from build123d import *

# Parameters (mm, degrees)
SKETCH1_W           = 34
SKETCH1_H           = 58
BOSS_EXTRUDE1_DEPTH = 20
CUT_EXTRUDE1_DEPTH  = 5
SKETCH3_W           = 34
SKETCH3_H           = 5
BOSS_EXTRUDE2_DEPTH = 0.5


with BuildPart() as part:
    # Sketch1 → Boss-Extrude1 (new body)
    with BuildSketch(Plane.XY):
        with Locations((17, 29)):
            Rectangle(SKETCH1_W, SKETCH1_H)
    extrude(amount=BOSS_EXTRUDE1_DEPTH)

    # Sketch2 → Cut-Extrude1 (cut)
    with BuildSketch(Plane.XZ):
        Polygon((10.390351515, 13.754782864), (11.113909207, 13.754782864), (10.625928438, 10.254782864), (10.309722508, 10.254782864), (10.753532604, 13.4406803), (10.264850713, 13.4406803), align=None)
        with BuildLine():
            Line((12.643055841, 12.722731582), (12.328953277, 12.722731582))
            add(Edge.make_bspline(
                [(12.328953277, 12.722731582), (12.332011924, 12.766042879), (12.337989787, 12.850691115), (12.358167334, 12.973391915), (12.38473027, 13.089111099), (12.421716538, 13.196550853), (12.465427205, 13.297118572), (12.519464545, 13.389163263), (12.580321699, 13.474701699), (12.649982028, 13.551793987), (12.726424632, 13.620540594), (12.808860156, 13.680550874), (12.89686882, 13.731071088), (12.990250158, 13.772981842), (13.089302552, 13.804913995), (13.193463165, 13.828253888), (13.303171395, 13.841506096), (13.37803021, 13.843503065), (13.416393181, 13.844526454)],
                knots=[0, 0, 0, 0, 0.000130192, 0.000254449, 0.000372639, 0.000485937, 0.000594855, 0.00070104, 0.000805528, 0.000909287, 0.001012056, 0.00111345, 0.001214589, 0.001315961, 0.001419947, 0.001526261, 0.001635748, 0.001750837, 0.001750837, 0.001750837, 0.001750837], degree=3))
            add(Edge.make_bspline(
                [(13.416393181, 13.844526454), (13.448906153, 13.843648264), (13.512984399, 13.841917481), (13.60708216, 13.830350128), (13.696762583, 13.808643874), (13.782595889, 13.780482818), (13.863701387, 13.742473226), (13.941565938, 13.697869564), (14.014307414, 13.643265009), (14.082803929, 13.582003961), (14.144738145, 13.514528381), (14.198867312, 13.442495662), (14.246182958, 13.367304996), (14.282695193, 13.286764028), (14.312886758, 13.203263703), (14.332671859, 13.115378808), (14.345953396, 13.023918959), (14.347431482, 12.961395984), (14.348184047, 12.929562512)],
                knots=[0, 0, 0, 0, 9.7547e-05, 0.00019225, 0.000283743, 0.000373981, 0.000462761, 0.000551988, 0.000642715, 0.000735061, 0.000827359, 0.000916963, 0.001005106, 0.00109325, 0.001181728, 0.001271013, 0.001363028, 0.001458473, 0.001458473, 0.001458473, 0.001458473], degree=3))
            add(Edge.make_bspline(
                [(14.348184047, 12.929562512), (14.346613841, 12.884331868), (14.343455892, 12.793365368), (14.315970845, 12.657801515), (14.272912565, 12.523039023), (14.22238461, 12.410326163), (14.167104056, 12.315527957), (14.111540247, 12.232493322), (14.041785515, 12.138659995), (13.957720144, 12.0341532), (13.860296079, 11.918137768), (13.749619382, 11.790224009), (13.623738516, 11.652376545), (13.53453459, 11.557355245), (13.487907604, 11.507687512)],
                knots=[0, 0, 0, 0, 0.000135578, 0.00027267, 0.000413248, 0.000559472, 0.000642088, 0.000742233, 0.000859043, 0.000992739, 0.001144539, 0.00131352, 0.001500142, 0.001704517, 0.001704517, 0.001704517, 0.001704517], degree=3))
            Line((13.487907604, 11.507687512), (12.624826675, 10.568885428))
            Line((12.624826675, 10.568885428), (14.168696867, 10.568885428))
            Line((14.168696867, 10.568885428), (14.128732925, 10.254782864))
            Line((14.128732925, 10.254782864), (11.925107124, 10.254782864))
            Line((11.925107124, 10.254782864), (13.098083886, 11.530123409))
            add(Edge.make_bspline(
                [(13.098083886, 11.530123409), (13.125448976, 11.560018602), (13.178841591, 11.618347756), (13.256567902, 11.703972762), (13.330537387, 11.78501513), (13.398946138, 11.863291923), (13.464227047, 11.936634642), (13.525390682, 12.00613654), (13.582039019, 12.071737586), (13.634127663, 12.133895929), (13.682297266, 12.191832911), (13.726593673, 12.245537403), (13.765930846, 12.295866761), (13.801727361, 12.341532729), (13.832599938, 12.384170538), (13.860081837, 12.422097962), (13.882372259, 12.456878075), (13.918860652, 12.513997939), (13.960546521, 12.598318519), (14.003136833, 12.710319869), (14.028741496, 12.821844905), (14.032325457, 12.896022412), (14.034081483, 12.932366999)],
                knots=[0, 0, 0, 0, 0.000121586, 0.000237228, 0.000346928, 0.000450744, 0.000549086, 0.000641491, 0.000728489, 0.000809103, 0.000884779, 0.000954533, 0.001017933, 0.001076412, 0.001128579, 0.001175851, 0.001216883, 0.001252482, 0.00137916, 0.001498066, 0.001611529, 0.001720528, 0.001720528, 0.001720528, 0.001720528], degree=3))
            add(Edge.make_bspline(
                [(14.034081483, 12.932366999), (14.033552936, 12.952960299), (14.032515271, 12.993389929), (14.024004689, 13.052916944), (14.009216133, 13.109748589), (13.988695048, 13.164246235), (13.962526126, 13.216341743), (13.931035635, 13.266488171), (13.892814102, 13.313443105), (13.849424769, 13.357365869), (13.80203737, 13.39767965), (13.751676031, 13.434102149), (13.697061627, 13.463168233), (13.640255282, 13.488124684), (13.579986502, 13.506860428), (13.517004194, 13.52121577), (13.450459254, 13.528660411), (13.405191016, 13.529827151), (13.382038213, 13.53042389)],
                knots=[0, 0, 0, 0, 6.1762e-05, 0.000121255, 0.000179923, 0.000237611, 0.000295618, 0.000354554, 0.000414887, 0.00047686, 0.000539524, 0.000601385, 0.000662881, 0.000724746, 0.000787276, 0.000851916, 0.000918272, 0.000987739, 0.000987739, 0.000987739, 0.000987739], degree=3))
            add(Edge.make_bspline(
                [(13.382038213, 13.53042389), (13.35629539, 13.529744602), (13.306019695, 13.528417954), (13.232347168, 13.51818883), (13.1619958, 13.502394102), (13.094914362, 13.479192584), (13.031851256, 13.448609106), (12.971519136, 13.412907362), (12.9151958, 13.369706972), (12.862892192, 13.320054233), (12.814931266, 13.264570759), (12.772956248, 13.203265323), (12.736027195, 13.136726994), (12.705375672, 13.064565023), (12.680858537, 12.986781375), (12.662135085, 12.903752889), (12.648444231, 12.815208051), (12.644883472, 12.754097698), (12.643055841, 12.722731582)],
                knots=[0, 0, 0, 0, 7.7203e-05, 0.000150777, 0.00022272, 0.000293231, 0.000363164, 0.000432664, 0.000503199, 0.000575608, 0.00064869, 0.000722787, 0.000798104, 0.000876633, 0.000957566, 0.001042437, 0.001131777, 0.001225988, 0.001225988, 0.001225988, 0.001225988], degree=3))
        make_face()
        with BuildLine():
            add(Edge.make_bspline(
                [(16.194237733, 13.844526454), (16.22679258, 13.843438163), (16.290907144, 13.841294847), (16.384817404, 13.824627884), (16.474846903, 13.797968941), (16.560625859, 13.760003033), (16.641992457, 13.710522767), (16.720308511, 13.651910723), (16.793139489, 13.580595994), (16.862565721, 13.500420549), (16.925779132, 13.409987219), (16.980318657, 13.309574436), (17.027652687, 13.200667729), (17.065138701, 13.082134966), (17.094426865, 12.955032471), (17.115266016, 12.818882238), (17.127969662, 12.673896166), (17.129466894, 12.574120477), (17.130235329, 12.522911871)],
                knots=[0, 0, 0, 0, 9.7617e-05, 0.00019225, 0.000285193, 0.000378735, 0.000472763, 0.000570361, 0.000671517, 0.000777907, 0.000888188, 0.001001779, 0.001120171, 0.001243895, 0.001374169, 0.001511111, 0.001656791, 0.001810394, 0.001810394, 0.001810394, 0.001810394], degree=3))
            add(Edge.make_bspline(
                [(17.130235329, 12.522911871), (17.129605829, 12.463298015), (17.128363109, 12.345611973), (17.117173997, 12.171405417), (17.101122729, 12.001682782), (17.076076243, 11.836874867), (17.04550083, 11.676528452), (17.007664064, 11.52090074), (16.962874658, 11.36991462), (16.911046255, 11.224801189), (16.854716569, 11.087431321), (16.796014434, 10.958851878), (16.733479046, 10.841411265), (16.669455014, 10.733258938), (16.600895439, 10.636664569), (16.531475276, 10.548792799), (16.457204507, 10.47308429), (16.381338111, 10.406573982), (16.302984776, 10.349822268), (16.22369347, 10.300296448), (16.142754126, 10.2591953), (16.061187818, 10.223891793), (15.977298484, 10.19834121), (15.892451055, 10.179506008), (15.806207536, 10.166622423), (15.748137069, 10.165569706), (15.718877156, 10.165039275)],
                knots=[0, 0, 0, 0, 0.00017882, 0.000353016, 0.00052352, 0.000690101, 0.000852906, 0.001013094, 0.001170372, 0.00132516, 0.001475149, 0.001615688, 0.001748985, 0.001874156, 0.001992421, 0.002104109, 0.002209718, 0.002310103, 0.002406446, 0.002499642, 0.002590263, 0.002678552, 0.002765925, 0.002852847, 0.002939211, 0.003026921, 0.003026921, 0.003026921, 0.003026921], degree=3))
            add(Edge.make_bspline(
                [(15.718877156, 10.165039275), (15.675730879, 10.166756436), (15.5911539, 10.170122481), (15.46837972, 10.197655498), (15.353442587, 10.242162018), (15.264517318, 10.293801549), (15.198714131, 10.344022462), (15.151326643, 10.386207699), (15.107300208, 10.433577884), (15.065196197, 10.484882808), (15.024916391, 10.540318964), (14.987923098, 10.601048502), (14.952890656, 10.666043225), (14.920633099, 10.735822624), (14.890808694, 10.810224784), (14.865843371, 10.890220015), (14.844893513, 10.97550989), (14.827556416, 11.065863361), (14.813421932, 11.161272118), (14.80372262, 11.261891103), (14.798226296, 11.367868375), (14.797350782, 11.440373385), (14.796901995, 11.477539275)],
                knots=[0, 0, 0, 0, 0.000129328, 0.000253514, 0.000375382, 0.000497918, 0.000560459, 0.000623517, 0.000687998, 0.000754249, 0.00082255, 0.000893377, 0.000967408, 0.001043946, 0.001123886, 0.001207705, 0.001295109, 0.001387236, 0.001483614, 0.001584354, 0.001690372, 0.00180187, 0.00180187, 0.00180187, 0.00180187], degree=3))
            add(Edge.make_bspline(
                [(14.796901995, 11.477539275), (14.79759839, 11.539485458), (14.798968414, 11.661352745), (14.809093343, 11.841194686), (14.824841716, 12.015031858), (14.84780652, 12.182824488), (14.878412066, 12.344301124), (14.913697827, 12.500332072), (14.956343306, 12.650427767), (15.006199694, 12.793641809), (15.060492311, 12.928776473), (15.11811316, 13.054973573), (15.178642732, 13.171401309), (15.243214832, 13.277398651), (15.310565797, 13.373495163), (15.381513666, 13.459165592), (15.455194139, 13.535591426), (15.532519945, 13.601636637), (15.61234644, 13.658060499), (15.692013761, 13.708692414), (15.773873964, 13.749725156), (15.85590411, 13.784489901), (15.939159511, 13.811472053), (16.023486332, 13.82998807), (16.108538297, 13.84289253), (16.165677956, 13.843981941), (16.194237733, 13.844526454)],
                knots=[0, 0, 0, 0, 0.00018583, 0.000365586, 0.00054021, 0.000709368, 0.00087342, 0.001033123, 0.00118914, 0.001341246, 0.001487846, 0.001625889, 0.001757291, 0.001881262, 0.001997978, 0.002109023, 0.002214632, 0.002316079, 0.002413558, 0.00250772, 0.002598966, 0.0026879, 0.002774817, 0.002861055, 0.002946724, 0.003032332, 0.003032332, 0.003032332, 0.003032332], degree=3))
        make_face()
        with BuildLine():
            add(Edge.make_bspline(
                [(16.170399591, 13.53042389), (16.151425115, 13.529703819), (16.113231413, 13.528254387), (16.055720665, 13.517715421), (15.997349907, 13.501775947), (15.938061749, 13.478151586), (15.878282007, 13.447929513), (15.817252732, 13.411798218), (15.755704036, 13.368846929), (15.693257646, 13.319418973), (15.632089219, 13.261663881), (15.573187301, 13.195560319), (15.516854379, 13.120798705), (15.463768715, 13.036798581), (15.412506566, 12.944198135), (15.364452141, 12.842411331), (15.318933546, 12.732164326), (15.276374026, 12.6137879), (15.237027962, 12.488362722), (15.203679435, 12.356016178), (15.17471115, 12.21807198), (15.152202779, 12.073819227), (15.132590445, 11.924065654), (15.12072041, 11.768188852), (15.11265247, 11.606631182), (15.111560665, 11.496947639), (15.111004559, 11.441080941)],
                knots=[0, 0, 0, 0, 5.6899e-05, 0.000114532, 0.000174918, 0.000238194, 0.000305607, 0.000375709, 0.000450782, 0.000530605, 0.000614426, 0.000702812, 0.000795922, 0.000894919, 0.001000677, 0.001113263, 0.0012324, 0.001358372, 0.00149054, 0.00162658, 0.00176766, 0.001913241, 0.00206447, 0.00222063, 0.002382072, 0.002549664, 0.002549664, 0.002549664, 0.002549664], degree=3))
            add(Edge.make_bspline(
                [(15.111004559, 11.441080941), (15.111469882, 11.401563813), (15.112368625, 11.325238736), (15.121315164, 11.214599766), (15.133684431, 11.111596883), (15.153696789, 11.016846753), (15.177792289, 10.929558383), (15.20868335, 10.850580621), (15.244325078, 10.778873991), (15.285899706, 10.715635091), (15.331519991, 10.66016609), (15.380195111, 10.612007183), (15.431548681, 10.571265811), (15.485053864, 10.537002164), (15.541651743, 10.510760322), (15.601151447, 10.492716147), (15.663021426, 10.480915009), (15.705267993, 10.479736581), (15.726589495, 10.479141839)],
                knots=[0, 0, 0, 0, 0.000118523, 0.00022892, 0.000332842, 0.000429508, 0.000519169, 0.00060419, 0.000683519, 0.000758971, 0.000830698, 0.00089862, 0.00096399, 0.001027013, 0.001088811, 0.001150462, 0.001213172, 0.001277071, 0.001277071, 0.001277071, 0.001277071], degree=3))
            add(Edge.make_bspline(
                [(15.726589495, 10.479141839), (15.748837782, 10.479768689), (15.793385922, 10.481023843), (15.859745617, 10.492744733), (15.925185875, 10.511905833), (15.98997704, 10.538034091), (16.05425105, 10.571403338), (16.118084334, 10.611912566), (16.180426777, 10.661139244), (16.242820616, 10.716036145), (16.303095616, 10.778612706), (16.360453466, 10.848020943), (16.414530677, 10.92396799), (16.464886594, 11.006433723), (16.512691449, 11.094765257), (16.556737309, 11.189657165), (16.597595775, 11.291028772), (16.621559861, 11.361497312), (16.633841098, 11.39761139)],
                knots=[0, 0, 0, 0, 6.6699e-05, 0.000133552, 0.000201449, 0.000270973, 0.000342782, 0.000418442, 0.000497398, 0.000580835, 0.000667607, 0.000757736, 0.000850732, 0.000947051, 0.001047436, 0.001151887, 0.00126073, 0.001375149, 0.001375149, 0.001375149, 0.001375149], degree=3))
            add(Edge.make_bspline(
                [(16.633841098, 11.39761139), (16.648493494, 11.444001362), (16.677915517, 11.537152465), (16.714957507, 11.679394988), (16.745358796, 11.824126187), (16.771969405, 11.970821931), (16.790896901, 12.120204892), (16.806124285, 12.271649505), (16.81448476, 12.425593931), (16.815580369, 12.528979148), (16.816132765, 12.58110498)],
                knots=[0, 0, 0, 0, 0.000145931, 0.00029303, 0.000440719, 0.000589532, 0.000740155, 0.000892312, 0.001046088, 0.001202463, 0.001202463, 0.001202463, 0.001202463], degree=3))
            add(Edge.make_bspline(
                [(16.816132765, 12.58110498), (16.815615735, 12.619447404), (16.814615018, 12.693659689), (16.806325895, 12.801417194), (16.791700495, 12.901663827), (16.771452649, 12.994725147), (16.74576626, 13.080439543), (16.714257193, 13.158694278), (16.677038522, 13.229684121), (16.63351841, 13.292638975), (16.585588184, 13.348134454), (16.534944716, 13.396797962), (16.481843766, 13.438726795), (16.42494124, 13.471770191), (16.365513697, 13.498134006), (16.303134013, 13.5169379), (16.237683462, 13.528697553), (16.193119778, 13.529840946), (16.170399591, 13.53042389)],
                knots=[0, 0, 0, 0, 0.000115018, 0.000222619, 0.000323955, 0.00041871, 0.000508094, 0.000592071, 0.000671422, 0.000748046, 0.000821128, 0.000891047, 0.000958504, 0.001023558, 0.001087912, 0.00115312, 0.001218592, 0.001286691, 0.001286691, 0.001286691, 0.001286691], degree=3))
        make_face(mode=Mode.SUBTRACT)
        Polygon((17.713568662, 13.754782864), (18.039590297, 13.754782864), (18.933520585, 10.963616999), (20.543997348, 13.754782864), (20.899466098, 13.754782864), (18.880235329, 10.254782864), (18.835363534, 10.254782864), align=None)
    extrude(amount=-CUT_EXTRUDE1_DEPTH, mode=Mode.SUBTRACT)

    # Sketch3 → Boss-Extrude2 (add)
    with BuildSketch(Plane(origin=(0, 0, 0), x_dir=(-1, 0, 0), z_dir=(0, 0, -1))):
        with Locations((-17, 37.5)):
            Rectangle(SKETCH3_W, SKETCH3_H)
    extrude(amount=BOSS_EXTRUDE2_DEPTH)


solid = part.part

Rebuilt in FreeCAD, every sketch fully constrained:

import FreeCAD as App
import Part
import Sketcher

doc = App.newDocument("Part")
body = doc.addObject("PartDesign::Body", "Body")

# Sketch on XY plane
sketch1 = doc.addObject("Sketcher::SketchObject", "Sketch")
body.addObject(sketch1)
sketch1.AttachmentSupport = (doc.XY_Plane, [""])
sketch1.MapMode = "FlatFace"
sketch1.addGeometry([
    Part.LineSegment(App.Vector(0, 58, 0), App.Vector(0, 0, 0)),
    Part.LineSegment(App.Vector(0, 0, 0), App.Vector(34, 0, 0)),
    Part.LineSegment(App.Vector(34, 0, 0), App.Vector(34, 58, 0)),
    Part.LineSegment(App.Vector(34, 58, 0), App.Vector(0, 58, 0)),
], False)
sketch1.addConstraint([
    Sketcher.Constraint("Coincident", 0, 2, 1, 1),
    Sketcher.Constraint("Coincident", 1, 2, 2, 1),
    Sketcher.Constraint("Coincident", 2, 2, 3, 1),
    Sketcher.Constraint("Coincident", 3, 2, 0, 1),
    Sketcher.Constraint("Vertical", 0),
    Sketcher.Constraint("Horizontal", 1),
    Sketcher.Constraint("Vertical", 2),
    Sketcher.Constraint("Horizontal", 3),
    Sketcher.Constraint("Coincident", 0, 2, -1, 1),
    Sketcher.Constraint("DistanceX", 1, 1, 1, 2, 34.0),
    Sketcher.Constraint("DistanceY", 0, 2, 0, 1, 58.0),
])
pad1 = doc.addObject("PartDesign::Pad", "Pad")
body.addObject(pad1)
pad1.Profile = sketch1
pad1.Length = 20

# Sketch on XZ plane
sketch2 = doc.addObject("Sketcher::SketchObject", "Sketch001")
body.addObject(sketch2)
sketch2.AttachmentSupport = (doc.XZ_Plane, [""])
sketch2.MapMode = "FlatFace"
sketch2.addGeometry([
    Part.LineSegment(App.Vector(11.113909, 13.754783, 0), App.Vector(10.390352, 13.754783, 0)),  # 0
    Part.LineSegment(App.Vector(10.390352, 13.754783, 0), App.Vector(10.264851, 13.44068, 0)),  # 1
    Part.LineSegment(App.Vector(10.264851, 13.44068, 0), App.Vector(10.753533, 13.44068, 0)),  # 2
    Part.LineSegment(App.Vector(10.753533, 13.44068, 0), App.Vector(10.309723, 10.254783, 0)),  # 3
    Part.LineSegment(App.Vector(10.309723, 10.254783, 0), App.Vector(10.625928, 10.254783, 0)),  # 4
    Part.LineSegment(App.Vector(10.625928, 10.254783, 0), App.Vector(11.113909, 13.754783, 0)),  # 5
    Part.LineSegment(App.Vector(12.328953, 12.722732, 0), App.Vector(12.643056, 12.722732, 0)),  # 6
    Part.BSplineCurve([App.Vector(13.382038, 13.530424, 0), App.Vector(13.356295, 13.529745, 0), App.Vector(13.30602, 13.528418, 0), App.Vector(13.232347, 13.518189, 0), App.Vector(13.161996, 13.502394, 0), App.Vector(13.094914, 13.479193, 0), App.Vector(13.031851, 13.448609, 0), App.Vector(12.971519, 13.412907, 0), App.Vector(12.915196, 13.369707, 0), App.Vector(12.862892, 13.320054, 0), App.Vector(12.814931, 13.264571, 0), App.Vector(12.772956, 13.203265, 0), App.Vector(12.736027, 13.136727, 0), App.Vector(12.705376, 13.064565, 0), App.Vector(12.680859, 12.986781, 0), App.Vector(12.662135, 12.903753, 0), App.Vector(12.648444, 12.815208, 0), App.Vector(12.644883, 12.754098, 0), App.Vector(12.643056, 12.722732, 0)], [4, 1, 1, 1, 1, 1, 1, 1, 1, 1, 1, 1, 1, 1, 1, 1, 4], [0, 0.000077203, 0.000150777, 0.00022272, 0.000293231, 0.000363164, 0.000432664, 0.000503199, 0.000575608, 0.00064869, 0.000722787, 0.000798104, 0.000876633, 0.000957566, 0.001042437, 0.001131777, 0.001225988], False, 3, [1, 1, 1, 1, 1, 1, 1, 1, 1, 1, 1, 1, 1, 1, 1, 1, 1, 1, 1], False),  # 7
    Part.BSplineCurve([App.Vector(14.034081, 12.932367, 0), App.Vector(14.033553, 12.95296, 0), App.Vector(14.032515, 12.99339, 0), App.Vector(14.024005, 13.052917, 0), App.Vector(14.009216, 13.109749, 0), App.Vector(13.988695, 13.164246, 0), App.Vector(13.962526, 13.216342, 0), App.Vector(13.931036, 13.266488, 0), App.Vector(13.892814, 13.313443, 0), App.Vector(13.849425, 13.357366, 0), App.Vector(13.802037, 13.39768, 0), App.Vector(13.751676, 13.434102, 0), App.Vector(13.697062, 13.463168, 0), App.Vector(13.640255, 13.488125, 0), App.Vector(13.579987, 13.50686, 0), App.Vector(13.517004, 13.521216, 0), App.Vector(13.450459, 13.52866, 0), App.Vector(13.405191, 13.529827, 0), App.Vector(13.382038, 13.530424, 0)], [4, 1, 1, 1, 1, 1, 1, 1, 1, 1, 1, 1, 1, 1, 1, 1, 4], [0, 0.000061762, 0.000121255, 0.000179923, 0.000237611, 0.000295618, 0.000354554, 0.000414887, 0.00047686, 0.000539524, 0.000601385, 0.000662881, 0.000724746, 0.000787276, 0.000851916, 0.000918272, 0.000987739], False, 3, [1, 1, 1, 1, 1, 1, 1, 1, 1, 1, 1, 1, 1, 1, 1, 1, 1, 1, 1], False),  # 8
    Part.BSplineCurve([App.Vector(13.098084, 11.530123, 0), App.Vector(13.125449, 11.560019, 0), App.Vector(13.178842, 11.618348, 0), App.Vector(13.256568, 11.703973, 0), App.Vector(13.330537, 11.785015, 0), App.Vector(13.398946, 11.863292, 0), App.Vector(13.464227, 11.936635, 0), App.Vector(13.525391, 12.006137, 0), App.Vector(13.582039, 12.071738, 0), App.Vector(13.634128, 12.133896, 0), App.Vector(13.682297, 12.191833, 0), App.Vector(13.726594, 12.245537, 0), App.Vector(13.765931, 12.295867, 0), App.Vector(13.801727, 12.341533, 0), App.Vector(13.8326, 12.384171, 0), App.Vector(13.860082, 12.422098, 0), App.Vector(13.882372, 12.456878, 0), App.Vector(13.918861, 12.513998, 0), App.Vector(13.960547, 12.598319, 0), App.Vector(14.003137, 12.71032, 0), App.Vector(14.028741, 12.821845, 0), App.Vector(14.032325, 12.896022, 0), App.Vector(14.034081, 12.932367, 0)], [4, 1, 1, 1, 1, 1, 1, 1, 1, 1, 1, 1, 1, 1, 1, 1, 1, 1, 1, 1, 4], [0, 0.000121586, 0.000237228, 0.000346928, 0.000450744, 0.000549086, 0.000641491, 0.000728489, 0.000809103, 0.000884779, 0.000954533, 0.001017933, 0.001076412, 0.001128579, 0.001175851, 0.001216883, 0.001252482, 0.00137916, 0.001498066, 0.001611529, 0.001720528], False, 3, [1, 1, 1, 1, 1, 1, 1, 1, 1, 1, 1, 1, 1, 1, 1, 1, 1, 1, 1, 1, 1, 1, 1], False),  # 9
    Part.LineSegment(App.Vector(13.098084, 11.530123, 0), App.Vector(11.925107, 10.254783, 0)),  # 10
    Part.LineSegment(App.Vector(11.925107, 10.254783, 0), App.Vector(14.128733, 10.254783, 0)),  # 11
    Part.LineSegment(App.Vector(14.128733, 10.254783, 0), App.Vector(14.168697, 10.568885, 0)),  # 12
    Part.LineSegment(App.Vector(14.168697, 10.568885, 0), App.Vector(12.624827, 10.568885, 0)),  # 13
    Part.LineSegment(App.Vector(12.624827, 10.568885, 0), App.Vector(13.487908, 11.507688, 0)),  # 14
    Part.BSplineCurve([App.Vector(14.348184, 12.929563, 0), App.Vector(14.346614, 12.884332, 0), App.Vector(14.343456, 12.793365, 0), App.Vector(14.315971, 12.657802, 0), App.Vector(14.272913, 12.523039, 0), App.Vector(14.222385, 12.410326, 0), App.Vector(14.167104, 12.315528, 0), App.Vector(14.11154, 12.232493, 0), App.Vector(14.041786, 12.13866, 0), App.Vector(13.95772, 12.034153, 0), App.Vector(13.860296, 11.918138, 0), App.Vector(13.749619, 11.790224, 0), App.Vector(13.623739, 11.652377, 0), App.Vector(13.534535, 11.557355, 0), App.Vector(13.487908, 11.507688, 0)], [4, 1, 1, 1, 1, 1, 1, 1, 1, 1, 1, 1, 4], [0, 0.000135578, 0.00027267, 0.000413248, 0.000559472, 0.000642088, 0.000742233, 0.000859043, 0.000992739, 0.001144539, 0.00131352, 0.001500142, 0.001704517], False, 3, [1, 1, 1, 1, 1, 1, 1, 1, 1, 1, 1, 1, 1, 1, 1], False),  # 15
    Part.BSplineCurve([App.Vector(13.416393, 13.844526, 0), App.Vector(13.448906, 13.843648, 0), App.Vector(13.512984, 13.841917, 0), App.Vector(13.607082, 13.83035, 0), App.Vector(13.696763, 13.808644, 0), App.Vector(13.782596, 13.780483, 0), App.Vector(13.863701, 13.742473, 0), App.Vector(13.941566, 13.69787, 0), App.Vector(14.014307, 13.643265, 0), App.Vector(14.082804, 13.582004, 0), App.Vector(14.144738, 13.514528, 0), App.Vector(14.198867, 13.442496, 0), App.Vector(14.246183, 13.367305, 0), App.Vector(14.282695, 13.286764, 0), App.Vector(14.312887, 13.203264, 0), App.Vector(14.332672, 13.115379, 0), App.Vector(14.345953, 13.023919, 0), App.Vector(14.347431, 12.961396, 0), App.Vector(14.348184, 12.929563, 0)], [4, 1, 1, 1, 1, 1, 1, 1, 1, 1, 1, 1, 1, 1, 1, 1, 4], [0, 0.000097547, 0.00019225, 0.000283743, 0.000373981, 0.000462761, 0.000551988, 0.000642715, 0.000735061, 0.000827359, 0.000916963, 0.001005106, 0.00109325, 0.001181728, 0.001271013, 0.001363028, 0.001458473], False, 3, [1, 1, 1, 1, 1, 1, 1, 1, 1, 1, 1, 1, 1, 1, 1, 1, 1, 1, 1], False),  # 16
    Part.BSplineCurve([App.Vector(12.328953, 12.722732, 0), App.Vector(12.332012, 12.766043, 0), App.Vector(12.33799, 12.850691, 0), App.Vector(12.358167, 12.973392, 0), App.Vector(12.38473, 13.089111, 0), App.Vector(12.421717, 13.196551, 0), App.Vector(12.465427, 13.297119, 0), App.Vector(12.519465, 13.389163, 0), App.Vector(12.580322, 13.474702, 0), App.Vector(12.649982, 13.551794, 0), App.Vector(12.726425, 13.620541, 0), App.Vector(12.80886, 13.680551, 0), App.Vector(12.896869, 13.731071, 0), App.Vector(12.99025, 13.772982, 0), App.Vector(13.089303, 13.804914, 0), App.Vector(13.193463, 13.828254, 0), App.Vector(13.303171, 13.841506, 0), App.Vector(13.37803, 13.843503, 0), App.Vector(13.416393, 13.844526, 0)], [4, 1, 1, 1, 1, 1, 1, 1, 1, 1, 1, 1, 1, 1, 1, 1, 4], [0, 0.000130192, 0.000254449, 0.000372639, 0.000485937, 0.000594855, 0.00070104, 0.000805528, 0.000909287, 0.001012056, 0.00111345, 0.001214589, 0.001315961, 0.001419947, 0.001526261, 0.001635748, 0.001750837], False, 3, [1, 1, 1, 1, 1, 1, 1, 1, 1, 1, 1, 1, 1, 1, 1, 1, 1, 1, 1], False),  # 17
    Part.BSplineCurve([App.Vector(16.194238, 13.844526, 0), App.Vector(16.226793, 13.843438, 0), App.Vector(16.290907, 13.841295, 0), App.Vector(16.384817, 13.824628, 0), App.Vector(16.474847, 13.797969, 0), App.Vector(16.560626, 13.760003, 0), App.Vector(16.641992, 13.710523, 0), App.Vector(16.720309, 13.651911, 0), App.Vector(16.793139, 13.580596, 0), App.Vector(16.862566, 13.500421, 0), App.Vector(16.925779, 13.409987, 0), App.Vector(16.980319, 13.309574, 0), App.Vector(17.027653, 13.200668, 0), App.Vector(17.065139, 13.082135, 0), App.Vector(17.094427, 12.955032, 0), App.Vector(17.115266, 12.818882, 0), App.Vector(17.12797, 12.673896, 0), App.Vector(17.129467, 12.57412, 0), App.Vector(17.130235, 12.522912, 0)], [4, 1, 1, 1, 1, 1, 1, 1, 1, 1, 1, 1, 1, 1, 1, 1, 4], [0, 0.000097617, 0.00019225, 0.000285193, 0.000378735, 0.000472763, 0.000570361, 0.000671517, 0.000777907, 0.000888188, 0.001001779, 0.001120171, 0.001243895, 0.001374169, 0.001511111, 0.001656791, 0.001810394], False, 3, [1, 1, 1, 1, 1, 1, 1, 1, 1, 1, 1, 1, 1, 1, 1, 1, 1, 1, 1], False),  # 18
    Part.BSplineCurve([App.Vector(14.796902, 11.477539, 0), App.Vector(14.797598, 11.539485, 0), App.Vector(14.798968, 11.661353, 0), App.Vector(14.809093, 11.841195, 0), App.Vector(14.824842, 12.015032, 0), App.Vector(14.847807, 12.182824, 0), App.Vector(14.878412, 12.344301, 0), App.Vector(14.913698, 12.500332, 0), App.Vector(14.956343, 12.650428, 0), App.Vector(15.0062, 12.793642, 0), App.Vector(15.060492, 12.928776, 0), App.Vector(15.118113, 13.054974, 0), App.Vector(15.178643, 13.171401, 0), App.Vector(15.243215, 13.277399, 0), App.Vector(15.310566, 13.373495, 0), App.Vector(15.381514, 13.459166, 0), App.Vector(15.455194, 13.535591, 0), App.Vector(15.53252, 13.601637, 0), App.Vector(15.612346, 13.65806, 0), App.Vector(15.692014, 13.708692, 0), App.Vector(15.773874, 13.749725, 0), App.Vector(15.855904, 13.78449, 0), App.Vector(15.93916, 13.811472, 0), App.Vector(16.023486, 13.829988, 0), App.Vector(16.108538, 13.842893, 0), App.Vector(16.165678, 13.843982, 0), App.Vector(16.194238, 13.844526, 0)], [4, 1, 1, 1, 1, 1, 1, 1, 1, 1, 1, 1, 1, 1, 1, 1, 1, 1, 1, 1, 1, 1, 1, 1, 4], [0, 0.00018583, 0.000365586, 0.00054021, 0.000709368, 0.00087342, 0.001033123, 0.00118914, 0.001341246, 0.001487846, 0.001625889, 0.001757291, 0.001881262, 0.001997978, 0.002109023, 0.002214632, 0.002316079, 0.002413558, 0.00250772, 0.002598966, 0.0026879, 0.002774817, 0.002861055, 0.002946724, 0.003032332], False, 3, [1, 1, 1, 1, 1, 1, 1, 1, 1, 1, 1, 1, 1, 1, 1, 1, 1, 1, 1, 1, 1, 1, 1, 1, 1, 1, 1], False),  # 19
    Part.BSplineCurve([App.Vector(15.718877, 10.165039, 0), App.Vector(15.675731, 10.166756, 0), App.Vector(15.591154, 10.170122, 0), App.Vector(15.46838, 10.197655, 0), App.Vector(15.353443, 10.242162, 0), App.Vector(15.264517, 10.293802, 0), App.Vector(15.198714, 10.344022, 0), App.Vector(15.151327, 10.386208, 0), App.Vector(15.1073, 10.433578, 0), App.Vector(15.065196, 10.484883, 0), App.Vector(15.024916, 10.540319, 0), App.Vector(14.987923, 10.601049, 0), App.Vector(14.952891, 10.666043, 0), App.Vector(14.920633, 10.735823, 0), App.Vector(14.890809, 10.810225, 0), App.Vector(14.865843, 10.89022, 0), App.Vector(14.844894, 10.97551, 0), App.Vector(14.827556, 11.065863, 0), App.Vector(14.813422, 11.161272, 0), App.Vector(14.803723, 11.261891, 0), App.Vector(14.798226, 11.367868, 0), App.Vector(14.797351, 11.440373, 0), App.Vector(14.796902, 11.477539, 0)], [4, 1, 1, 1, 1, 1, 1, 1, 1, 1, 1, 1, 1, 1, 1, 1, 1, 1, 1, 1, 4], [0, 0.000129328, 0.000253514, 0.000375382, 0.000497918, 0.000560459, 0.000623517, 0.000687998, 0.000754249, 0.00082255, 0.000893377, 0.000967408, 0.001043946, 0.001123886, 0.001207705, 0.001295109, 0.001387236, 0.001483614, 0.001584354, 0.001690372, 0.00180187], False, 3, [1, 1, 1, 1, 1, 1, 1, 1, 1, 1, 1, 1, 1, 1, 1, 1, 1, 1, 1, 1, 1, 1, 1], False),  # 20
    Part.BSplineCurve([App.Vector(17.130235, 12.522912, 0), App.Vector(17.129606, 12.463298, 0), App.Vector(17.128363, 12.345612, 0), App.Vector(17.117174, 12.171405, 0), App.Vector(17.101123, 12.001683, 0), App.Vector(17.076076, 11.836875, 0), App.Vector(17.045501, 11.676528, 0), App.Vector(17.007664, 11.520901, 0), App.Vector(16.962875, 11.369915, 0), App.Vector(16.911046, 11.224801, 0), App.Vector(16.854717, 11.087431, 0), App.Vector(16.796014, 10.958852, 0), App.Vector(16.733479, 10.841411, 0), App.Vector(16.669455, 10.733259, 0), App.Vector(16.600895, 10.636665, 0), App.Vector(16.531475, 10.548793, 0), App.Vector(16.457205, 10.473084, 0), App.Vector(16.381338, 10.406574, 0), App.Vector(16.302985, 10.349822, 0), App.Vector(16.223693, 10.300296, 0), App.Vector(16.142754, 10.259195, 0), App.Vector(16.061188, 10.223892, 0), App.Vector(15.977298, 10.198341, 0), App.Vector(15.892451, 10.179506, 0), App.Vector(15.806208, 10.166622, 0), App.Vector(15.748137, 10.16557, 0), App.Vector(15.718877, 10.165039, 0)], [4, 1, 1, 1, 1, 1, 1, 1, 1, 1, 1, 1, 1, 1, 1, 1, 1, 1, 1, 1, 1, 1, 1, 1, 4], [0, 0.00017882, 0.000353016, 0.00052352, 0.000690101, 0.000852906, 0.001013094, 0.001170372, 0.00132516, 0.001475149, 0.001615688, 0.001748985, 0.001874156, 0.001992421, 0.002104109, 0.002209718, 0.002310103, 0.002406446, 0.002499642, 0.002590263, 0.002678552, 0.002765925, 0.002852847, 0.002939211, 0.003026921], False, 3, [1, 1, 1, 1, 1, 1, 1, 1, 1, 1, 1, 1, 1, 1, 1, 1, 1, 1, 1, 1, 1, 1, 1, 1, 1, 1, 1], False),  # 21
    Part.BSplineCurve([App.Vector(16.816133, 12.581105, 0), App.Vector(16.815616, 12.619447, 0), App.Vector(16.814615, 12.69366, 0), App.Vector(16.806326, 12.801417, 0), App.Vector(16.7917, 12.901664, 0), App.Vector(16.771453, 12.994725, 0), App.Vector(16.745766, 13.08044, 0), App.Vector(16.714257, 13.158694, 0), App.Vector(16.677039, 13.229684, 0), App.Vector(16.633518, 13.292639, 0), App.Vector(16.585588, 13.348134, 0), App.Vector(16.534945, 13.396798, 0), App.Vector(16.481844, 13.438727, 0), App.Vector(16.424941, 13.47177, 0), App.Vector(16.365514, 13.498134, 0), App.Vector(16.303134, 13.516938, 0), App.Vector(16.237683, 13.528698, 0), App.Vector(16.19312, 13.529841, 0), App.Vector(16.1704, 13.530424, 0)], [4, 1, 1, 1, 1, 1, 1, 1, 1, 1, 1, 1, 1, 1, 1, 1, 4], [0, 0.000115018, 0.000222619, 0.000323955, 0.00041871, 0.000508094, 0.000592071, 0.000671422, 0.000748046, 0.000821128, 0.000891047, 0.000958504, 0.001023558, 0.001087912, 0.00115312, 0.001218592, 0.001286691], False, 3, [1, 1, 1, 1, 1, 1, 1, 1, 1, 1, 1, 1, 1, 1, 1, 1, 1, 1, 1], False),  # 22
    Part.BSplineCurve([App.Vector(16.633841, 11.397611, 0), App.Vector(16.648493, 11.444001, 0), App.Vector(16.677916, 11.537152, 0), App.Vector(16.714958, 11.679395, 0), App.Vector(16.745359, 11.824126, 0), App.Vector(16.771969, 11.970822, 0), App.Vector(16.790897, 12.120205, 0), App.Vector(16.806124, 12.27165, 0), App.Vector(16.814485, 12.425594, 0), App.Vector(16.81558, 12.528979, 0), App.Vector(16.816133, 12.581105, 0)], [4, 1, 1, 1, 1, 1, 1, 1, 4], [0, 0.000145931, 0.00029303, 0.000440719, 0.000589532, 0.000740155, 0.000892312, 0.001046088, 0.001202463], False, 3, [1, 1, 1, 1, 1, 1, 1, 1, 1, 1, 1], False),  # 23
    Part.BSplineCurve([App.Vector(15.726589, 10.479142, 0), App.Vector(15.748838, 10.479769, 0), App.Vector(15.793386, 10.481024, 0), App.Vector(15.859746, 10.492745, 0), App.Vector(15.925186, 10.511906, 0), App.Vector(15.989977, 10.538034, 0), App.Vector(16.054251, 10.571403, 0), App.Vector(16.118084, 10.611913, 0), App.Vector(16.180427, 10.661139, 0), App.Vector(16.242821, 10.716036, 0), App.Vector(16.303096, 10.778613, 0), App.Vector(16.360453, 10.848021, 0), App.Vector(16.414531, 10.923968, 0), App.Vector(16.464887, 11.006434, 0), App.Vector(16.512691, 11.094765, 0), App.Vector(16.556737, 11.189657, 0), App.Vector(16.597596, 11.291029, 0), App.Vector(16.62156, 11.361497, 0), App.Vector(16.633841, 11.397611, 0)], [4, 1, 1, 1, 1, 1, 1, 1, 1, 1, 1, 1, 1, 1, 1, 1, 4], [0, 0.000066699, 0.000133552, 0.000201449, 0.000270973, 0.000342782, 0.000418442, 0.000497398, 0.000580835, 0.000667607, 0.000757736, 0.000850732, 0.000947051, 0.001047436, 0.001151887, 0.00126073, 0.001375149], False, 3, [1, 1, 1, 1, 1, 1, 1, 1, 1, 1, 1, 1, 1, 1, 1, 1, 1, 1, 1], False),  # 24
    Part.BSplineCurve([App.Vector(15.111005, 11.441081, 0), App.Vector(15.11147, 11.401564, 0), App.Vector(15.112369, 11.325239, 0), App.Vector(15.121315, 11.2146, 0), App.Vector(15.133684, 11.111597, 0), App.Vector(15.153697, 11.016847, 0), App.Vector(15.177792, 10.929558, 0), App.Vector(15.208683, 10.850581, 0), App.Vector(15.244325, 10.778874, 0), App.Vector(15.2859, 10.715635, 0), App.Vector(15.33152, 10.660166, 0), App.Vector(15.380195, 10.612007, 0), App.Vector(15.431549, 10.571266, 0), App.Vector(15.485054, 10.537002, 0), App.Vector(15.541652, 10.51076, 0), App.Vector(15.601151, 10.492716, 0), App.Vector(15.663021, 10.480915, 0), App.Vector(15.705268, 10.479737, 0), App.Vector(15.726589, 10.479142, 0)], [4, 1, 1, 1, 1, 1, 1, 1, 1, 1, 1, 1, 1, 1, 1, 1, 4], [0, 0.000118523, 0.00022892, 0.000332842, 0.000429508, 0.000519169, 0.00060419, 0.000683519, 0.000758971, 0.000830698, 0.00089862, 0.00096399, 0.001027013, 0.001088811, 0.001150462, 0.001213172, 0.001277071], False, 3, [1, 1, 1, 1, 1, 1, 1, 1, 1, 1, 1, 1, 1, 1, 1, 1, 1, 1, 1], False),  # 25
    Part.BSplineCurve([App.Vector(16.1704, 13.530424, 0), App.Vector(16.151425, 13.529704, 0), App.Vector(16.113231, 13.528254, 0), App.Vector(16.055721, 13.517715, 0), App.Vector(15.99735, 13.501776, 0), App.Vector(15.938062, 13.478152, 0), App.Vector(15.878282, 13.44793, 0), App.Vector(15.817253, 13.411798, 0), App.Vector(15.755704, 13.368847, 0), App.Vector(15.693258, 13.319419, 0), App.Vector(15.632089, 13.261664, 0), App.Vector(15.573187, 13.19556, 0), App.Vector(15.516854, 13.120799, 0), App.Vector(15.463769, 13.036799, 0), App.Vector(15.412507, 12.944198, 0), App.Vector(15.364452, 12.842411, 0), App.Vector(15.318934, 12.732164, 0), App.Vector(15.276374, 12.613788, 0), App.Vector(15.237028, 12.488363, 0), App.Vector(15.203679, 12.356016, 0), App.Vector(15.174711, 12.218072, 0), App.Vector(15.152203, 12.073819, 0), App.Vector(15.13259, 11.924066, 0), App.Vector(15.12072, 11.768189, 0), App.Vector(15.112652, 11.606631, 0), App.Vector(15.111561, 11.496948, 0), App.Vector(15.111005, 11.441081, 0)], [4, 1, 1, 1, 1, 1, 1, 1, 1, 1, 1, 1, 1, 1, 1, 1, 1, 1, 1, 1, 1, 1, 1, 1, 4], [0, 0.000056899, 0.000114532, 0.000174918, 0.000238194, 0.000305607, 0.000375709, 0.000450782, 0.000530605, 0.000614426, 0.000702812, 0.000795922, 0.000894919, 0.001000677, 0.001113263, 0.0012324, 0.001358372, 0.00149054, 0.00162658, 0.00176766, 0.001913241, 0.00206447, 0.00222063, 0.002382072, 0.002549664], False, 3, [1, 1, 1, 1, 1, 1, 1, 1, 1, 1, 1, 1, 1, 1, 1, 1, 1, 1, 1, 1, 1, 1, 1, 1, 1, 1, 1], False),  # 26
    Part.LineSegment(App.Vector(18.03959, 13.754783, 0), App.Vector(17.713569, 13.754783, 0)),  # 27
    Part.LineSegment(App.Vector(17.713569, 13.754783, 0), App.Vector(18.835364, 10.254783, 0)),  # 28
    Part.LineSegment(App.Vector(18.835364, 10.254783, 0), App.Vector(18.880235, 10.254783, 0)),  # 29
    Part.LineSegment(App.Vector(18.880235, 10.254783, 0), App.Vector(20.899466, 13.754783, 0)),  # 30
    Part.LineSegment(App.Vector(20.899466, 13.754783, 0), App.Vector(20.543997, 13.754783, 0)),  # 31
    Part.LineSegment(App.Vector(20.543997, 13.754783, 0), App.Vector(18.933521, 10.963617, 0)),  # 32
    Part.LineSegment(App.Vector(18.933521, 10.963617, 0), App.Vector(18.03959, 13.754783, 0)),  # 33
], False)
sketch2.addConstraint([
    Sketcher.Constraint("Block", 7),
    Sketcher.Constraint("Block", 8),
    Sketcher.Constraint("Block", 9),
    Sketcher.Constraint("Block", 15),
    Sketcher.Constraint("Block", 16),
    Sketcher.Constraint("Block", 17),
    Sketcher.Constraint("Block", 18),
    Sketcher.Constraint("Block", 19),
    Sketcher.Constraint("Block", 20),
    Sketcher.Constraint("Block", 21),
    Sketcher.Constraint("Block", 22),
    Sketcher.Constraint("Block", 23),
    Sketcher.Constraint("Block", 24),
    Sketcher.Constraint("Block", 25),
    Sketcher.Constraint("Block", 26),
    Sketcher.Constraint("Coincident", 0, 2, 1, 1),
    Sketcher.Constraint("Coincident", 1, 2, 2, 1),
    Sketcher.Constraint("Coincident", 2, 2, 3, 1),
    Sketcher.Constraint("Coincident", 3, 2, 4, 1),
    Sketcher.Constraint("Coincident", 4, 2, 5, 1),
    Sketcher.Constraint("Coincident", 5, 2, 0, 1),
    Sketcher.Constraint("Coincident", 6, 2, 7, 2),
    Sketcher.Constraint("Coincident", 9, 1, 10, 1),
    Sketcher.Constraint("Coincident", 10, 2, 11, 1),
    Sketcher.Constraint("Coincident", 11, 2, 12, 1),
    Sketcher.Constraint("Coincident", 12, 2, 13, 1),
    Sketcher.Constraint("Coincident", 13, 2, 14, 1),
    Sketcher.Constraint("Coincident", 14, 2, 15, 2),
    Sketcher.Constraint("Coincident", 17, 1, 6, 1),
    Sketcher.Constraint("Coincident", 27, 2, 28, 1),
    Sketcher.Constraint("Coincident", 28, 2, 29, 1),
    Sketcher.Constraint("Coincident", 29, 2, 30, 1),
    Sketcher.Constraint("Coincident", 30, 2, 31, 1),
    Sketcher.Constraint("Coincident", 31, 2, 32, 1),
    Sketcher.Constraint("Coincident", 32, 2, 33, 1),
    Sketcher.Constraint("Coincident", 33, 2, 27, 1),
    Sketcher.Constraint("Horizontal", 0),
    Sketcher.Constraint("Horizontal", 2),
    Sketcher.Constraint("Horizontal", 4),
    Sketcher.Constraint("Horizontal", 11),
    Sketcher.Constraint("Horizontal", 13),
    Sketcher.Constraint("Horizontal", 27),
    Sketcher.Constraint("Horizontal", 29),
    Sketcher.Constraint("Horizontal", 31),
    Sketcher.Constraint("Horizontal", 4, 2, 10, 2),
    Sketcher.Constraint("Horizontal", 5, 2, 27, 2),
    Sketcher.Constraint("Horizontal", 11, 2, 28, 2),
    Sketcher.Constraint("Horizontal", 27, 2, 30, 2),
    Sketcher.Constraint("DistanceY", 3, 2, 0, 2, 3.5),
    Sketcher.Constraint("DistanceX", 2, 1, 2, 2, 0.488682),
    Sketcher.Constraint("DistanceX", 13, 2, 13, 1, 1.54387),
    Sketcher.Constraint("DistanceX", 27, 2, 27, 1, 0.326022),
    Sketcher.Constraint("DistanceX", 29, 1, 29, 2, 0.044872),
    Sketcher.Constraint("DistanceX", 31, 2, 31, 1, 0.355469),
    Sketcher.Constraint("DistanceX", 1, 2, 0, 2, 0.125501),
    Sketcher.Constraint("DistanceX", 4, 2, 13, 2, 1.998898),
    Sketcher.Constraint("DistanceX", 10, 2, 14, 2, 1.5628),
    Sketcher.Constraint("DistanceX", 12, 2, 31, 2, 6.3753),
    Sketcher.Constraint("Distance", 3, 3.216661),
    Sketcher.Constraint("Distance", 14, 1.275248),
    Sketcher.Constraint("Distance", 28, 3.675381),
    Sketcher.Constraint("Distance", 32, 3.222459),
    Sketcher.Constraint("DistanceX", 0, 2, 0, 1, 0.723558),
    Sketcher.Constraint("DistanceX", 4, 1, 4, 2, 0.316206),
    Sketcher.Constraint("DistanceX", 11, 1, 11, 2, 2.203626),
    Sketcher.Constraint("DistanceX", -1, 1, 0, 2, 10.390352),
    Sketcher.Constraint("DistanceY", -1, 1, 1, 2, 13.44068),
    Sketcher.Constraint("DistanceX", -1, 1, 4, 2, 10.625928),
    Sketcher.Constraint("DistanceX", -1, 1, 27, 2, 17.713569),
    Sketcher.Constraint("DistanceX", -1, 1, 32, 2, 18.933521),
])
pocket1 = doc.addObject("PartDesign::Pocket", "Pocket")
body.addObject(pocket1)
pocket1.Profile = sketch2
pocket1.Length = 5

# Sketch on XY plane
sketch3 = doc.addObject("Sketcher::SketchObject", "Sketch002")
body.addObject(sketch3)
sketch3.AttachmentSupport = (doc.XY_Plane, [""])
sketch3.MapMode = "FlatFace"
sketch3.addGeometry([
    Part.LineSegment(App.Vector(34, 40, 0), App.Vector(34, 35, 0)),
    Part.LineSegment(App.Vector(34, 35, 0), App.Vector(0, 35, 0)),
    Part.LineSegment(App.Vector(0, 35, 0), App.Vector(0, 40, 0)),
    Part.LineSegment(App.Vector(0, 40, 0), App.Vector(34, 40, 0)),
], False)
sketch3.addConstraint([
    Sketcher.Constraint("Coincident", 0, 2, 1, 1),
    Sketcher.Constraint("Coincident", 1, 2, 2, 1),
    Sketcher.Constraint("Coincident", 2, 2, 3, 1),
    Sketcher.Constraint("Coincident", 3, 2, 0, 1),
    Sketcher.Constraint("Vertical", 0),
    Sketcher.Constraint("Horizontal", 1),
    Sketcher.Constraint("Vertical", 2),
    Sketcher.Constraint("Horizontal", 3),
    Sketcher.Constraint("PointOnObject", 1, 2, -2),
    Sketcher.Constraint("DistanceX", 1, 2, 1, 1, 34.0),
    Sketcher.Constraint("DistanceY", 0, 2, 0, 1, 5.0),
    Sketcher.Constraint("DistanceY", -1, 1, 0, 2, 35.0),
])
pad2 = doc.addObject("PartDesign::Pad", "Pad001")
body.addObject(pad2)
pad2.Profile = sketch3
pad2.Length = 0.5
pad2.Reversed = True

doc.recompute()
